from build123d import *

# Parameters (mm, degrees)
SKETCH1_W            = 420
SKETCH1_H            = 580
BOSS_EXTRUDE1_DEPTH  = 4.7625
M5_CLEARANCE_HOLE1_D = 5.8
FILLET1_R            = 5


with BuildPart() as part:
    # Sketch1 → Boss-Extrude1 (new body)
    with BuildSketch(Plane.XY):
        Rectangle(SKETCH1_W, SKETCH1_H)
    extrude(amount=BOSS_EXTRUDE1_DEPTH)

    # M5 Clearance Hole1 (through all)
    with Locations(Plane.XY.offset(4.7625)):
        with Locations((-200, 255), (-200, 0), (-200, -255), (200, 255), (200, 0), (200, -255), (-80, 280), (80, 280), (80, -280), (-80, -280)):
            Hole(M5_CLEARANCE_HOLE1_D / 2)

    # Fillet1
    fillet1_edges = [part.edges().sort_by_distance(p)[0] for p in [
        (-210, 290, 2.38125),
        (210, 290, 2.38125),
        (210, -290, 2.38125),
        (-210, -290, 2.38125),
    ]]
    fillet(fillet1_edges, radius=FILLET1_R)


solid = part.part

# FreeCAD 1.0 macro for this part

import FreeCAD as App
import Part
import Sketcher
from FreeCAD import Vector


def edges_at(feature, points):
    """Names of the edges that pass closest to the given points."""
    edges = feature.Shape.Edges
    near = lambda p: min(range(len(edges)), key=lambda i: edges[i].distToShape(Part.Vertex(*p))[0])
    return sorted({f"Edge{near(p) + 1}" for p in points})


def add_polygon(sketch, points):
    """Adds a closed chain of lines whose ends are joined by coincident constraints."""
    first, n = sketch.GeometryCount, len(points)
    for a, b in zip(points, points[1:] + points[:1]):
        sketch.addGeometry(Part.LineSegment(App.Vector(*a, 0), App.Vector(*b, 0)), False)
    for i in range(n):
        sketch.addConstraint(Sketcher.Constraint("Coincident", first + i, 2, first + (i + 1) % n, 1))

doc = App.newDocument("Part")
params = doc.addObject("Spreadsheet::Sheet", "Params")
for row, (alias, value) in enumerate([
    ("sketch1_width", "420 mm"),
    ("sketch1_height", "580 mm"),
    ("pad1_length", "4.7625 mm"),
    ("sketch2_diameter", "5.8 mm"),
    ("hole_diameter", "5.8 mm"),
    ("fillet_radius", "5 mm"),
], start=1):
    params.set(f"A{row}", alias)
    params.set(f"B{row}", "=" + value)
    params.setAlias(f"B{row}", alias)

body = doc.addObject("PartDesign::Body", "Body")

# Sketch on XY plane
sketch1 = doc.addObject("Sketcher::SketchObject", "Sketch")
body.addObject(sketch1)
sketch1.AttachmentSupport = (doc.XY_Plane, [""])
sketch1.MapMode = "FlatFace"
add_polygon(sketch1, [(-210, 290), (-210, -290), (210, -290), (210, 290)])  # lines 0-3
sketch1.addConstraint([
    Sketcher.Constraint("Vertical", 0),
    Sketcher.Constraint("Horizontal", 1),
    Sketcher.Constraint("Vertical", 2),
    Sketcher.Constraint("Horizontal", 3),
    Sketcher.Constraint("Symmetric", 0, 2, 2, 2, -1, 1),
    Sketcher.Constraint("DistanceX", 1, 1, 1, 2, 420.0),
    Sketcher.Constraint("DistanceY", 0, 2, 0, 1, 580.0),
])
sketch1.setExpression("Constraints[9]", "Params.sketch1_width")
sketch1.setExpression("Constraints[10]", "Params.sketch1_height")
pad1 = doc.addObject("PartDesign::Pad", "Pad")
body.addObject(pad1)
pad1.Profile = sketch1
pad1.setExpression("Length", "Params.pad1_length")

# Sketch on XY plane
sketch2 = doc.addObject("Sketcher::SketchObject", "Sketch001")
body.addObject(sketch2)
sketch2.AttachmentSupport = (doc.XY_Plane, [""])
sketch2.MapMode = "FlatFace"
sketch2.AttachmentOffset = App.Placement(Vector(0, 0, 4.7625), App.Rotation())
sketch2.addGeometry([
    Part.Circle(Vector(-200, 255, 0), Vector(0, 0, 1), 2.9),  # 0
    Part.Circle(Vector(-200, 0, 0), Vector(0, 0, 1), 2.9),  # 1
    Part.Circle(Vector(-200, -255, 0), Vector(0, 0, 1), 2.9),  # 2
    Part.Circle(Vector(200, 255, 0), Vector(0, 0, 1), 2.9),  # 3
    Part.Circle(Vector(200, 0, 0), Vector(0, 0, 1), 2.9),  # 4
    Part.Circle(Vector(200, -255, 0), Vector(0, 0, 1), 2.9),  # 5
    Part.Circle(Vector(-80, 280, 0), Vector(0, 0, 1), 2.9),  # 6
    Part.Circle(Vector(80, 280, 0), Vector(0, 0, 1), 2.9),  # 7
    Part.Circle(Vector(80, -280, 0), Vector(0, 0, 1), 2.9),  # 8
    Part.Circle(Vector(-80, -280, 0), Vector(0, 0, 1), 2.9),  # 9
], False)
sketch2.addConstraint([
    Sketcher.Constraint("Equal", 0, 1),
    Sketcher.Constraint("Equal", 1, 2),
    Sketcher.Constraint("Equal", 2, 3),
    Sketcher.Constraint("Equal", 3, 4),
    Sketcher.Constraint("Equal", 4, 5),
    Sketcher.Constraint("Equal", 5, 6),
    Sketcher.Constraint("Equal", 6, 7),
    Sketcher.Constraint("Equal", 7, 8),
    Sketcher.Constraint("Equal", 8, 9),
    Sketcher.Constraint("Symmetric", 2, 3, 3, 3, -1, 1),
    Sketcher.Constraint("Symmetric", 1, 3, 4, 3, -1, 1),
    Sketcher.Constraint("Symmetric", 0, 3, 5, 3, -1, 1),
    Sketcher.Constraint("Symmetric", 6, 3, 8, 3, -1, 1),
    Sketcher.Constraint("Symmetric", 7, 3, 9, 3, -1, 1),
    Sketcher.Constraint("Symmetric", 0, 3, 3, 3, -2),
    Sketcher.Constraint("Symmetric", 6, 3, 7, 3, -2),
    Sketcher.Constraint("PointOnObject", 1, 3, -1),
    Sketcher.Constraint("Vertical", 0, 3, 1, 3),
    Sketcher.Constraint("Diameter", 0, 5.8),
    Sketcher.Constraint("DistanceX", 0, 3, -1, 1, 200.0),
    Sketcher.Constraint("DistanceY", -1, 1, 0, 3, 255.0),
    Sketcher.Constraint("DistanceX", 6, 3, -1, 1, 80.0),
    Sketcher.Constraint("DistanceY", -1, 1, 6, 3, 280.0),
])
sketch2.setExpression("Constraints[18]", "Params.sketch2_diameter")
doc.recompute()
hole = doc.addObject("PartDesign::Hole", "Hole")
body.addObject(hole)
hole.Profile = sketch2
hole.ThreadType = "None"
hole.setExpression("Diameter", "Params.hole_diameter")
hole.DepthType = "ThroughAll"
doc.recompute()

fillet = doc.addObject("PartDesign::Fillet", "Fillet")
body.addObject(fillet)
fillet.Base = (hole, edges_at(hole, [
    (-210, 290, 2.381),
    (210, 290, 2.381),
    (210, -290, 2.381),
    (-210, -290, 2.381),
]))
fillet.setExpression("Radius", "Params.fillet_radius")

doc.recompute()
